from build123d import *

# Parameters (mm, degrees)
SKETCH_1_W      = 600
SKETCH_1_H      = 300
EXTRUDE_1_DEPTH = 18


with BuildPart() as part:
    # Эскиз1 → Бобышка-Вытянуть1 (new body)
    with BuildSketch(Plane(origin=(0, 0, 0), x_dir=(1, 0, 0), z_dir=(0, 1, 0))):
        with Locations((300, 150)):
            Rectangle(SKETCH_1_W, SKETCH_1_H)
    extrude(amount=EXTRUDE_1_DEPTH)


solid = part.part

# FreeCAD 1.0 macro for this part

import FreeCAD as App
import Part
import Sketcher


def add_polygon(sketch, points):
    """Adds a closed chain of lines whose ends are joined by coincident constraints."""
    first, n = sketch.GeometryCount, len(points)
    for a, b in zip(points, points[1:] + points[:1]):
        sketch.addGeometry(Part.LineSegment(App.Vector(*a, 0), App.Vector(*b, 0)), False)
    for i in range(n):
        sketch.addConstraint(Sketcher.Constraint("Coincident", first + i, 2, first + (i + 1) % n, 1))

doc = App.newDocument("Part")
body = doc.addObject("PartDesign::Body", "Body")

# Sketch on XZ plane
sketch1 = body.newObject("Sketcher::SketchObject", "Sketch")
sketch1.AttachmentSupport = (doc.getObject("XZ_Plane"), [""])
sketch1.MapMode = "FlatFace"
add_polygon(sketch1, [(0, -300), (0, 0), (600, 0), (600, -300)])  # lines 0-3
sketch1.addConstraint(Sketcher.Constraint("Vertical", 0))
sketch1.addConstraint(Sketcher.Constraint("Horizontal", 1))
sketch1.addConstraint(Sketcher.Constraint("Vertical", 2))
sketch1.addConstraint(Sketcher.Constraint("Horizontal", 3))
sketch1.addConstraint(Sketcher.Constraint("Coincident", 0, 2, -1, 1))
sketch1.addConstraint(Sketcher.Constraint("DistanceX", 1, 1, 1, 2, 600.0))
sketch1.addConstraint(Sketcher.Constraint("DistanceY", 0, 1, 0, 2, 300.0))
pad1 = body.newObject("PartDesign::Pad", "Pad")
pad1.Profile = sketch1
pad1.Length = 18
pad1.Reversed = True

doc.recompute()
